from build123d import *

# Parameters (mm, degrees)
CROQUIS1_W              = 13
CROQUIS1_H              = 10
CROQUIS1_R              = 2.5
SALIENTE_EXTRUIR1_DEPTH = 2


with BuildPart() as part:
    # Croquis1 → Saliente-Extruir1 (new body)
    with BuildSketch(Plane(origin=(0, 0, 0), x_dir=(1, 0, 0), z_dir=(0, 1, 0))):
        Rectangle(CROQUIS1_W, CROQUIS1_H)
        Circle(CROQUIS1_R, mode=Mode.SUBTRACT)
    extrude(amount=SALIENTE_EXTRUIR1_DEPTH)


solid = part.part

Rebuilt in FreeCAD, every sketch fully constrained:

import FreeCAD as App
import Part
import Sketcher
Q = App.Units.Quantity

doc = App.newDocument("Part")
body = doc.addObject("PartDesign::Body", "Body")

# Sketch on XZ plane
sketch1 = body.newObject("Sketcher::SketchObject", "Sketch")
sketch1.AttachmentSupport = (doc.getObject("XZ_Plane"), [""])
sketch1.MapMode = "FlatFace"
sketch1.addGeometry([
    Part.LineSegment(App.Vector(-6.5, -5, 0), App.Vector(-6.5, 5, 0)),  # 0
    Part.LineSegment(App.Vector(-6.5, 5, 0), App.Vector(6.5, 5, 0)),  # 1
    Part.LineSegment(App.Vector(6.5, 5, 0), App.Vector(6.5, -5, 0)),  # 2
    Part.LineSegment(App.Vector(6.5, -5, 0), App.Vector(-6.5, -5, 0)),  # 3
    Part.Circle(App.Vector(0, 0, 0), App.Vector(0, 0, 1), 2.5),  # 4
], False)
sketch1.addConstraint([
    Sketcher.Constraint("Coincident", 0, 2, 1, 1),
    Sketcher.Constraint("Coincident", 1, 2, 2, 1),
    Sketcher.Constraint("Coincident", 2, 2, 3, 1),
    Sketcher.Constraint("Coincident", 3, 2, 0, 1),
    Sketcher.Constraint("Vertical", 0),
    Sketcher.Constraint("Horizontal", 1),
    Sketcher.Constraint("Vertical", 2),
    Sketcher.Constraint("Horizontal", 3),
    Sketcher.Constraint("Coincident", 4, 3, -1, 1),
    Sketcher.Constraint("Symmetric", 0, 2, 2, 2, -1, 1),
    Sketcher.Constraint("Diameter", 4, Q("5 mm")),
    Sketcher.Constraint("DistanceX", 1, 1, 1, 2, Q("13 mm")),
    Sketcher.Constraint("DistanceY", 0, 1, 0, 2, Q("10 mm")),
])
pad1 = body.newObject("PartDesign::Pad", "Pad")
pad1.Profile = sketch1
pad1.Length = 2
pad1.Reversed = True

doc.recompute()
